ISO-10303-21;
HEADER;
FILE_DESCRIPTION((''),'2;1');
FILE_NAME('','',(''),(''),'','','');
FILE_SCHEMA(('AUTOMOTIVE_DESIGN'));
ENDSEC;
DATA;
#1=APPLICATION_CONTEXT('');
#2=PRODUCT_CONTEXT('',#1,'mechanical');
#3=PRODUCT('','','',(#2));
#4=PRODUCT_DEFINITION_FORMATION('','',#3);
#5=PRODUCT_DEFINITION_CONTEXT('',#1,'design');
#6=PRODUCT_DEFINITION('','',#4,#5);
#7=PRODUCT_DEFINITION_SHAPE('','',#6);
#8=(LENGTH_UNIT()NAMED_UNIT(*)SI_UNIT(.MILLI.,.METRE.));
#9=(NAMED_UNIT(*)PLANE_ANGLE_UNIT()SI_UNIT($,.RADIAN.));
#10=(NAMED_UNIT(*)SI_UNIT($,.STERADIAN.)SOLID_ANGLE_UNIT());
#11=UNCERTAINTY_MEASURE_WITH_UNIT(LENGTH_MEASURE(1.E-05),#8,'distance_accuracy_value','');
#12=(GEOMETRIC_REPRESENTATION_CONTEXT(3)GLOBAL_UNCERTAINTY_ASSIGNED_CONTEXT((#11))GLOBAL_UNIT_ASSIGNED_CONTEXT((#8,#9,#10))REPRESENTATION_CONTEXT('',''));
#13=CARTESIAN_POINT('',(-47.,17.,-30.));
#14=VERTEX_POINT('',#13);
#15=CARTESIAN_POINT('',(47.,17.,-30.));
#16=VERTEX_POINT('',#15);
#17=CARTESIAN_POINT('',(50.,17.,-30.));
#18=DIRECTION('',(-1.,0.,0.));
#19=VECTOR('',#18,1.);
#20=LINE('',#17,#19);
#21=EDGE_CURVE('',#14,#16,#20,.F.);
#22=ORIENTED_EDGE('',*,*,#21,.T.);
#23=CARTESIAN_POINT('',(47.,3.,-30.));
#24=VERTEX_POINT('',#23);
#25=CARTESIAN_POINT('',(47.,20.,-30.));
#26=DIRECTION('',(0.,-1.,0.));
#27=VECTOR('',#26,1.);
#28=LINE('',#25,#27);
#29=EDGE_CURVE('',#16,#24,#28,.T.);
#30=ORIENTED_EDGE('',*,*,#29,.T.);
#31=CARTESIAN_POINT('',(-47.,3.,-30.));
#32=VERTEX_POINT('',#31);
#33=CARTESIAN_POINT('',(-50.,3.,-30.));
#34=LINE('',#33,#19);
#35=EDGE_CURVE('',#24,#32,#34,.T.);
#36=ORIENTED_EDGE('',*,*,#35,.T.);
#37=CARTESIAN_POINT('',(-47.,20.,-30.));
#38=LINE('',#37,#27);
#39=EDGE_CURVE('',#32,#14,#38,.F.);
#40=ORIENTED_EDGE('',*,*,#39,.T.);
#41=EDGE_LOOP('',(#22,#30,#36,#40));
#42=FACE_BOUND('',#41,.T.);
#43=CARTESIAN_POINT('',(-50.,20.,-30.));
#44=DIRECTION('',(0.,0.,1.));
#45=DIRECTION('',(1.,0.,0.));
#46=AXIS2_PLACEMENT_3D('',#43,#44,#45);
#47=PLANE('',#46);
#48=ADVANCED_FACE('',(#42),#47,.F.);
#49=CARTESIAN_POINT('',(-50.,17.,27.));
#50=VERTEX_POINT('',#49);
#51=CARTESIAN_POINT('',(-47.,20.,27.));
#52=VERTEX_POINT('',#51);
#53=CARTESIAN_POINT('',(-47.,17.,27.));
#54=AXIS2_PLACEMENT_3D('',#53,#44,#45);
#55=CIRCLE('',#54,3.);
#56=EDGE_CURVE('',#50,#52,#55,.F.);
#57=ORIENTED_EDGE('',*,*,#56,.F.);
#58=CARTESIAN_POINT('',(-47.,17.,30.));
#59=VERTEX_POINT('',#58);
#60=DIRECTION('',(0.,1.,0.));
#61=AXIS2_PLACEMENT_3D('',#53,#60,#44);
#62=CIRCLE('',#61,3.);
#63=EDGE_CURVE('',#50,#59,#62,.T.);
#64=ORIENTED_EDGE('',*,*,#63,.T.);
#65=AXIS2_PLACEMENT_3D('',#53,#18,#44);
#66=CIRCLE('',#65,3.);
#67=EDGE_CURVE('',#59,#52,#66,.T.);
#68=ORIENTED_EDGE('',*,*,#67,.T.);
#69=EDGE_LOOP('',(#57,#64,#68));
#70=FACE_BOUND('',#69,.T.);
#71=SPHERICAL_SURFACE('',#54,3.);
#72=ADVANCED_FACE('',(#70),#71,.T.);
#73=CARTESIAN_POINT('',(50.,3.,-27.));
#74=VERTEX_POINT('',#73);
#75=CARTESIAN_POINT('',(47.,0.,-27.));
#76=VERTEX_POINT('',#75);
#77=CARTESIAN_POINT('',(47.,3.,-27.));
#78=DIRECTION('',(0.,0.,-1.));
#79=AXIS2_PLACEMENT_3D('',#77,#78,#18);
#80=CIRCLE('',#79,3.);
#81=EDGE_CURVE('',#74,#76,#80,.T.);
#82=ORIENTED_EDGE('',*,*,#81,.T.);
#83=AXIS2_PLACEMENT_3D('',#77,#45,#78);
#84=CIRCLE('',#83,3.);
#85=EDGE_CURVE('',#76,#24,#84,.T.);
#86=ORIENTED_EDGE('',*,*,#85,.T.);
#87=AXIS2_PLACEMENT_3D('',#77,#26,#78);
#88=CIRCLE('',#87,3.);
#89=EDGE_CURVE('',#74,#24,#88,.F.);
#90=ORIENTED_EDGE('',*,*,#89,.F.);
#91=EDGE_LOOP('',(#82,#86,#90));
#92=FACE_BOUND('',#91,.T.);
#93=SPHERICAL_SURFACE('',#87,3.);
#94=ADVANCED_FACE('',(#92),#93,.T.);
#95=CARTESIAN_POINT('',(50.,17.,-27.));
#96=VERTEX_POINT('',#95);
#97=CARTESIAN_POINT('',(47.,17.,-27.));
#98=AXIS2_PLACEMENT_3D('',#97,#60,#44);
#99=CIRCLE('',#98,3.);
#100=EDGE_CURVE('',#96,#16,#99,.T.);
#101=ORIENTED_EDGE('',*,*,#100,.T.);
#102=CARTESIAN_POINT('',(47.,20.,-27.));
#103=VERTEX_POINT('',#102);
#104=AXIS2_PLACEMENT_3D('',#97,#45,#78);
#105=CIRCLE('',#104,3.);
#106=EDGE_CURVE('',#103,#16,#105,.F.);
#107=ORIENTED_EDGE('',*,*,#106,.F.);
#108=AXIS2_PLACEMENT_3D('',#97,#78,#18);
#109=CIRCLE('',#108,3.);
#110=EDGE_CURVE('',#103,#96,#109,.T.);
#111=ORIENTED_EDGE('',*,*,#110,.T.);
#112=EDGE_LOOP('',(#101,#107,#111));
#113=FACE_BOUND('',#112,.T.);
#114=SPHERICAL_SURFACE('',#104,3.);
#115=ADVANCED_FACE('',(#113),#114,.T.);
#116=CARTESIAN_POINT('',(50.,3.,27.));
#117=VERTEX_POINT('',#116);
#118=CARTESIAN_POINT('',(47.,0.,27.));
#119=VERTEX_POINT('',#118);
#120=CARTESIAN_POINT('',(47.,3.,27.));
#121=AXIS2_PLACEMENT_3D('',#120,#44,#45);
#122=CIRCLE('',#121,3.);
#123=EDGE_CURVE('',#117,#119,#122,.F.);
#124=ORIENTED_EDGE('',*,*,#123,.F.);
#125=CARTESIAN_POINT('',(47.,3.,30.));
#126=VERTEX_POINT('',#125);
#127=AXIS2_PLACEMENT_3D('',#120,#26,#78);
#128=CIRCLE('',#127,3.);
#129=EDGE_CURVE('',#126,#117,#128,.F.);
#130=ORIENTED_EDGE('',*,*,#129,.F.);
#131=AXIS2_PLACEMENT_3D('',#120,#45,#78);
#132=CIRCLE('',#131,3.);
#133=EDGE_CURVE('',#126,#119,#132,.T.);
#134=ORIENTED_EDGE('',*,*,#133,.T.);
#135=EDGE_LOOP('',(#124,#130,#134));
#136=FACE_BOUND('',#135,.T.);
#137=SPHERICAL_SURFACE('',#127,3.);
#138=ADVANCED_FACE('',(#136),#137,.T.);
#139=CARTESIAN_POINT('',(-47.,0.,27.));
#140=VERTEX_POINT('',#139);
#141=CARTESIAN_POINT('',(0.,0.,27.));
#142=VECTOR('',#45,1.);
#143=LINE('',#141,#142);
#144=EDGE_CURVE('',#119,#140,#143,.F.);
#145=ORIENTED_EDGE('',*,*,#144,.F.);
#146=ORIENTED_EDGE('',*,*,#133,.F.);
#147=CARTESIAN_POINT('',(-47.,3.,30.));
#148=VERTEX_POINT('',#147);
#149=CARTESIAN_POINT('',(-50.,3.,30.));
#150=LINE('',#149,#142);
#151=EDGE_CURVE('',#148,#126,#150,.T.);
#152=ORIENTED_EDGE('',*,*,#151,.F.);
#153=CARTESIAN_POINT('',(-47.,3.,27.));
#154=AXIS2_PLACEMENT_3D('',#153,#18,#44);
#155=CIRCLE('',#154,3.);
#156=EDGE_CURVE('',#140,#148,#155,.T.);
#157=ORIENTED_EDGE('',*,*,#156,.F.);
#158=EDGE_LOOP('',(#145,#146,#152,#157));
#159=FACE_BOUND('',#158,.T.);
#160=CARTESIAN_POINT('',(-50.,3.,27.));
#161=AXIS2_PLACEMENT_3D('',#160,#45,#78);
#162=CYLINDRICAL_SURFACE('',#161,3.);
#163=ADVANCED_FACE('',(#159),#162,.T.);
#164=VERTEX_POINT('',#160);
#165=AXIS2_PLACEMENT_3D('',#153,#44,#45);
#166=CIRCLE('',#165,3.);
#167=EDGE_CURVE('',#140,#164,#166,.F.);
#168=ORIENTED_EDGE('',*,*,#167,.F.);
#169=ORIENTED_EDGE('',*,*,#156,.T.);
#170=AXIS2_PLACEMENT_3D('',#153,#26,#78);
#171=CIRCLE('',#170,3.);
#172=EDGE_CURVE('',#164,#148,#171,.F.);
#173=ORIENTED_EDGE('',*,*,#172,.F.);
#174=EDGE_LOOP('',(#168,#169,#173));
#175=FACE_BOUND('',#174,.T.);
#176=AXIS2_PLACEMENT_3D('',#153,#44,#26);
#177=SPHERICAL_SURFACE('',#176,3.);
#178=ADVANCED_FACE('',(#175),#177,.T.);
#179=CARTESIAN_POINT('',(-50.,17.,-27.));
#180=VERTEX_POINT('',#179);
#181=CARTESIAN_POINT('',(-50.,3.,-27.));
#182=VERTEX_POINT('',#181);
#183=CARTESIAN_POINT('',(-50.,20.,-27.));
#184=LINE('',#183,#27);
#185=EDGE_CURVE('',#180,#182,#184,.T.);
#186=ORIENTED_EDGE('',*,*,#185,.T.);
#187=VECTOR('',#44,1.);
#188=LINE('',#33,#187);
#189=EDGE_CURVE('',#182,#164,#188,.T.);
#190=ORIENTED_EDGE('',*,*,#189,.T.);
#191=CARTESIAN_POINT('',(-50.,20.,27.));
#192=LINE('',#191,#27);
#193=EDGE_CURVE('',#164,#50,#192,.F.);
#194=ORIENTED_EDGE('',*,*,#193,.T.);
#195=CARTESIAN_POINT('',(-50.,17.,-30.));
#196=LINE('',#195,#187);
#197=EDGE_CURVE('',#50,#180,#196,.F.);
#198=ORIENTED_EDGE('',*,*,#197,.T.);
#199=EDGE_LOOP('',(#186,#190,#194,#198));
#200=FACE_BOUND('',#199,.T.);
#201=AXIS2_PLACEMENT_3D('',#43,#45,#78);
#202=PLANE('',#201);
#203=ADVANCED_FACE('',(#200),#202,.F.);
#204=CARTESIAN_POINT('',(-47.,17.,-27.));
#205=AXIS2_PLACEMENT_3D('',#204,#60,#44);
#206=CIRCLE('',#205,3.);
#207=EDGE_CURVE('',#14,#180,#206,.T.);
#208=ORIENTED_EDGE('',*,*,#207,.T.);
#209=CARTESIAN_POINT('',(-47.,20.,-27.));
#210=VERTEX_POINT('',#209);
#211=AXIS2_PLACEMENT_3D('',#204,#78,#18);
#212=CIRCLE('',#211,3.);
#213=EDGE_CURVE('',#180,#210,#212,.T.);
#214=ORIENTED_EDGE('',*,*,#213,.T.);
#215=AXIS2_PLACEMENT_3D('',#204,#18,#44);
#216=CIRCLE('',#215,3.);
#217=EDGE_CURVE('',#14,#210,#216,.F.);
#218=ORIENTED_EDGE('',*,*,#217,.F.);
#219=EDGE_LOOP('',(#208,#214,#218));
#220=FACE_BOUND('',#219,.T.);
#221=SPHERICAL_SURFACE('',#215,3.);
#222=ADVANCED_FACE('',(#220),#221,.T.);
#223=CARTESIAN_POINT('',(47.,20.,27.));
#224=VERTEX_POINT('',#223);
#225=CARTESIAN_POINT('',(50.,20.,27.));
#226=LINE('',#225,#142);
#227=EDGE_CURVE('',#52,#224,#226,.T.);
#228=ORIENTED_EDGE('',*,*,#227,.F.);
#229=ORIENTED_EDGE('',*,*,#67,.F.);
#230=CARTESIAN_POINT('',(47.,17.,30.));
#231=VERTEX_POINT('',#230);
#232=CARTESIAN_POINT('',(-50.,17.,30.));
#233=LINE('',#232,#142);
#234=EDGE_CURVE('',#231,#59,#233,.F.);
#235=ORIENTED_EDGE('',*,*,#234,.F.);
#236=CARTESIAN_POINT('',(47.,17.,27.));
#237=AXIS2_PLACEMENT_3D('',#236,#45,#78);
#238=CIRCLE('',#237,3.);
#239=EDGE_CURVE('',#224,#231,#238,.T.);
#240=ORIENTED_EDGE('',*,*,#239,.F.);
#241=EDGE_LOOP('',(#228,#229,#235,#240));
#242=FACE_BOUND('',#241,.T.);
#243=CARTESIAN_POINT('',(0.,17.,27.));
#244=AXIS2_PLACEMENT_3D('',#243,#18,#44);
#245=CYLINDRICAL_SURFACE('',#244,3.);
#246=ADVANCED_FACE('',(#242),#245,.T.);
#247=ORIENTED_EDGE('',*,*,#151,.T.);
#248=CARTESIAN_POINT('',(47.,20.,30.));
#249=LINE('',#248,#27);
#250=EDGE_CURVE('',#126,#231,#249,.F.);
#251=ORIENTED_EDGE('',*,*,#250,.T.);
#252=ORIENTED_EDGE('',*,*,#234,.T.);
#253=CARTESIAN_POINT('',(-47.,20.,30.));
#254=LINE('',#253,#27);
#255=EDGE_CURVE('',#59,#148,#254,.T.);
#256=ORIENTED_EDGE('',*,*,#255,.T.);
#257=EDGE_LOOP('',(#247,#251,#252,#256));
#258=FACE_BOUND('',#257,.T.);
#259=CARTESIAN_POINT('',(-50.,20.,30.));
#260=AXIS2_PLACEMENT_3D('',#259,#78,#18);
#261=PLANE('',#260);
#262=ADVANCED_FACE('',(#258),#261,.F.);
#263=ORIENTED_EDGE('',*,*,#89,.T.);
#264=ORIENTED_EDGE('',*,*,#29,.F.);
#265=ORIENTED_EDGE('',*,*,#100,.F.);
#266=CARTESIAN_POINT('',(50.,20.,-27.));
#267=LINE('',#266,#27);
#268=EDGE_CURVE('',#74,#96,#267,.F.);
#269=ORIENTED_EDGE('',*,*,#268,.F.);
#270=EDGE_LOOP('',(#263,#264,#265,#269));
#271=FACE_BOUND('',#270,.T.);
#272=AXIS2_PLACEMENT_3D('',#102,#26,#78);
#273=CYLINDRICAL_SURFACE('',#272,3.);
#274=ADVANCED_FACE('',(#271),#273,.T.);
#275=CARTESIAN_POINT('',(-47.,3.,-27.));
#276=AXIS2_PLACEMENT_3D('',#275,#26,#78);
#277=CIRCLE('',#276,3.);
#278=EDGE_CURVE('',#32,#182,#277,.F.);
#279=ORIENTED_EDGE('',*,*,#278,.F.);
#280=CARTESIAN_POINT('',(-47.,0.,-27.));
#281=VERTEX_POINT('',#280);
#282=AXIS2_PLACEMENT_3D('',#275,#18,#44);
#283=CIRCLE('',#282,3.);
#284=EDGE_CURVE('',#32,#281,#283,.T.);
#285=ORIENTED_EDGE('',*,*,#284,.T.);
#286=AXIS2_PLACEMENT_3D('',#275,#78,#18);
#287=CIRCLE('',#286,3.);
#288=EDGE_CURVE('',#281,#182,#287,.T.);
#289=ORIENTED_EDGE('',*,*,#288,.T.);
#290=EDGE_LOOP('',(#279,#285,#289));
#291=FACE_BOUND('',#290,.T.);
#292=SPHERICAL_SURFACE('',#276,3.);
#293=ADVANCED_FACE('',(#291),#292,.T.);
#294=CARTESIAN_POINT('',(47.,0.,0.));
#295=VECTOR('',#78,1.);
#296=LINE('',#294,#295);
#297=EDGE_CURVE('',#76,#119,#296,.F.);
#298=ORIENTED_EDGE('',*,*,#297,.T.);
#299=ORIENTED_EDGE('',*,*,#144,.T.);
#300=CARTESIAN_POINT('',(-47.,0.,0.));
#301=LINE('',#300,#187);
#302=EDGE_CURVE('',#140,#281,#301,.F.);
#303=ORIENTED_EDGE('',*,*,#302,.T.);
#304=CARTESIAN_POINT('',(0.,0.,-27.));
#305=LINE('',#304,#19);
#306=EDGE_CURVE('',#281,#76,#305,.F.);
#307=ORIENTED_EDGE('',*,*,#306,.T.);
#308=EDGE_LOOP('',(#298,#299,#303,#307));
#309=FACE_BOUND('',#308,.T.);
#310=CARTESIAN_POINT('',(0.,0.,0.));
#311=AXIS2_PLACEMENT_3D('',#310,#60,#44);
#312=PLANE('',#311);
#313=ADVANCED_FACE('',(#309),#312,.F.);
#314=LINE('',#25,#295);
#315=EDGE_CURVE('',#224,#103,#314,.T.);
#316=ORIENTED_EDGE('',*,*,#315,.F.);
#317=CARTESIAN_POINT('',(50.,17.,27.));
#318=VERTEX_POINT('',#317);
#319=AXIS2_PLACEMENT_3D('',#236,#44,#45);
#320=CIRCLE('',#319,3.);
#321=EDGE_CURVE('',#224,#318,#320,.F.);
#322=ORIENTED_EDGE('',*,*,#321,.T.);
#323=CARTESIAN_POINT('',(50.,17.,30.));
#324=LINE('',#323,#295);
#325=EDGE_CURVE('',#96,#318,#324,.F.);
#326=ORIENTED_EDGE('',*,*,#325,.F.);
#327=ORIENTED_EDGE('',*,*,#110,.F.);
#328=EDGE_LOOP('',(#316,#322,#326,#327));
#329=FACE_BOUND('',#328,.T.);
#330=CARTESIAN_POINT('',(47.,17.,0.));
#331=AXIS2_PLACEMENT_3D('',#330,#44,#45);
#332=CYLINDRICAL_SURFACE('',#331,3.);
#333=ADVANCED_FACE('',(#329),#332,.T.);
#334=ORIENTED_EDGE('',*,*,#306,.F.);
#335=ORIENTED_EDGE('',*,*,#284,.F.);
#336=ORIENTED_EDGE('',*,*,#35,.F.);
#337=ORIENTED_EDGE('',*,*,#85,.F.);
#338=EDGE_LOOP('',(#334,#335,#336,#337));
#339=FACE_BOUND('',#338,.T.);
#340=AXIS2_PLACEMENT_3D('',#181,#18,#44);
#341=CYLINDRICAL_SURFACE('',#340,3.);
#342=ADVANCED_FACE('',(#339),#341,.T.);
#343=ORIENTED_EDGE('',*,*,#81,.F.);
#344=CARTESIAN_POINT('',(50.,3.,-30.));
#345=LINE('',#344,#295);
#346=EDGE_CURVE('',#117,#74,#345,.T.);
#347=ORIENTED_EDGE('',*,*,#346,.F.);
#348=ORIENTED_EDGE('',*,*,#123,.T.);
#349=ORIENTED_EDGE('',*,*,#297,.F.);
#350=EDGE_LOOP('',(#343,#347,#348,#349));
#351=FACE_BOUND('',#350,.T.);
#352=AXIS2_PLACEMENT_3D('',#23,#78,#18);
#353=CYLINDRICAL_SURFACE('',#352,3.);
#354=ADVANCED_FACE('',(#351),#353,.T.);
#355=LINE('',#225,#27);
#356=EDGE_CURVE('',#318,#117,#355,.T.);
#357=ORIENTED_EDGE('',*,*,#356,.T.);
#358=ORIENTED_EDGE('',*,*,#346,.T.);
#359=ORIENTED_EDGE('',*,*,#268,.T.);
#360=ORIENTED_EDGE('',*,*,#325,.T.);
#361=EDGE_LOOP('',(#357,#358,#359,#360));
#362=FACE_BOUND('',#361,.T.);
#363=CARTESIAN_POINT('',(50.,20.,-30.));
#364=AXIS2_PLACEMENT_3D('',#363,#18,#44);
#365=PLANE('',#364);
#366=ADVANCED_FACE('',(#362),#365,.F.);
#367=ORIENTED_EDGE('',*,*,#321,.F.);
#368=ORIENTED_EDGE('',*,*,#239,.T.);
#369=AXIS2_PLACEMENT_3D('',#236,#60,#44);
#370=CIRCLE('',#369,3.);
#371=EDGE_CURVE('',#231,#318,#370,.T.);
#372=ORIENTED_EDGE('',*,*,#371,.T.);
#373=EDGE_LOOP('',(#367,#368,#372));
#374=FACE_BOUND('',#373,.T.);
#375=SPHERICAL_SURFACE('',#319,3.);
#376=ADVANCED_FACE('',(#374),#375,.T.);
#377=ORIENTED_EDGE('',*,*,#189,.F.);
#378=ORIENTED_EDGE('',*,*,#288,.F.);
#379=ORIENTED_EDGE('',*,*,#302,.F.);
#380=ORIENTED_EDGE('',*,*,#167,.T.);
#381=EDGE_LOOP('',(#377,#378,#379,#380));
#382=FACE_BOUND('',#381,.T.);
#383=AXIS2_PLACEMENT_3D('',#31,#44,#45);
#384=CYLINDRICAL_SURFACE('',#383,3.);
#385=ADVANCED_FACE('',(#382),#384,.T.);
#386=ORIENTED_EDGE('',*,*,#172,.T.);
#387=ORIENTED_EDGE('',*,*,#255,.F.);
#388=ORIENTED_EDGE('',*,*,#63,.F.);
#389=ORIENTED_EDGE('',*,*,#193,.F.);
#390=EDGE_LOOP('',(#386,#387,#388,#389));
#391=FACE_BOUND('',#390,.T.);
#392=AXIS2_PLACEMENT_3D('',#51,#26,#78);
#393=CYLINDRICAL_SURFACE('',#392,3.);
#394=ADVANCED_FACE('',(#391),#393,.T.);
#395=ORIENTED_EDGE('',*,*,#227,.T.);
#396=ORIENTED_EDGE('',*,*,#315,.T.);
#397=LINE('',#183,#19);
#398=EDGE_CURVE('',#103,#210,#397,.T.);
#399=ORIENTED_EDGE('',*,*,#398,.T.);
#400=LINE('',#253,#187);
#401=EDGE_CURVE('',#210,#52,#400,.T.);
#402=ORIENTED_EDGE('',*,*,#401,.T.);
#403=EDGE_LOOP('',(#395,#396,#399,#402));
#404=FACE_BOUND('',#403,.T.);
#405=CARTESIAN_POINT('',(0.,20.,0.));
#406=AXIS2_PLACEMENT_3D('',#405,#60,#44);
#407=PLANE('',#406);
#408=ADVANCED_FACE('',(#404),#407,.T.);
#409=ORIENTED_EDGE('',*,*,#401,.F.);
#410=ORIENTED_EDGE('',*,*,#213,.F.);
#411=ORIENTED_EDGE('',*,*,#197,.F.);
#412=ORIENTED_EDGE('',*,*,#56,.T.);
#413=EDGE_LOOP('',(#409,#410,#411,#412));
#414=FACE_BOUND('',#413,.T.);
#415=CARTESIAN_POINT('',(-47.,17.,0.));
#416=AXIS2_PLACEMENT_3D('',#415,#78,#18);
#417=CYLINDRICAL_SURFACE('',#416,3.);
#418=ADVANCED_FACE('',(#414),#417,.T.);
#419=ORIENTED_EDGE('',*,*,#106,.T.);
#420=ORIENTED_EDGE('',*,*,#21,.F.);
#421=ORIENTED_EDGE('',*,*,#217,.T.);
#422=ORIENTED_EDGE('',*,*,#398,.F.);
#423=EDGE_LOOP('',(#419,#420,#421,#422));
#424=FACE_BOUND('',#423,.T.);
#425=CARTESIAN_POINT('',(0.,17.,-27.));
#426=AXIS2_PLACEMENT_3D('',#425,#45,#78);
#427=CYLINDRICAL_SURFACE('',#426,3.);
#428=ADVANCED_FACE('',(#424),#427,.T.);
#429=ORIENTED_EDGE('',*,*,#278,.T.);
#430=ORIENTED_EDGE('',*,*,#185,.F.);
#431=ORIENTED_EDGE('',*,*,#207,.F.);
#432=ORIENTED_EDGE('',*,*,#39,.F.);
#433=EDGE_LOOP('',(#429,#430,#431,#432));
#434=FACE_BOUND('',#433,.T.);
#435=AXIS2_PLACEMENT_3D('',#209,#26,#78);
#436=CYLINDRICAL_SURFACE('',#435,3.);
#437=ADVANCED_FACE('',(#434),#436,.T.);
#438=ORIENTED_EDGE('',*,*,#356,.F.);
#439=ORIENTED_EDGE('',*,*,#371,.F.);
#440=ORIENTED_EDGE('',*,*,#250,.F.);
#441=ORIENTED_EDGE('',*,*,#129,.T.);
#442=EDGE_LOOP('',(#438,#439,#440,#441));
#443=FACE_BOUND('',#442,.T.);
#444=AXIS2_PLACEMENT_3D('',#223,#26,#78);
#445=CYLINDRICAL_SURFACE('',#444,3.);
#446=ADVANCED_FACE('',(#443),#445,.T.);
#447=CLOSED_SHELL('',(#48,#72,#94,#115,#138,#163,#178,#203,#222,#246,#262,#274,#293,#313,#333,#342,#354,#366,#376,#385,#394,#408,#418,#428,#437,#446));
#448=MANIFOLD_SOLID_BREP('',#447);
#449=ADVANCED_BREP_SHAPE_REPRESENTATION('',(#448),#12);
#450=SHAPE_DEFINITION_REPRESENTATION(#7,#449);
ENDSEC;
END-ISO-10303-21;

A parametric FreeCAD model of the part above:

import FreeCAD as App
import Part
import Sketcher

V = App.Vector

doc = App.newDocument("Part")
body = doc.addObject("PartDesign::Body", "Body")

sketch1 = body.newObject("Sketcher::SketchObject", "Sketch")
sketch1.AttachmentSupport = (doc.getObject("XZ_Plane"), [""])
sketch1.MapMode = "FlatFace"
sketch1.addGeometry(Part.LineSegment(V(-50, -30, 0), V(-50, 30, 0)), False)
sketch1.addGeometry(Part.LineSegment(V(-50, 30, 0), V(50, 30, 0)), False)
sketch1.addGeometry(Part.LineSegment(V(50, 30, 0), V(50, -30, 0)), False)
sketch1.addGeometry(Part.LineSegment(V(50, -30, 0), V(-50, -30, 0)), False)
sketch1.addConstraint(Sketcher.Constraint("Coincident", 0, 2, 1, 1))
sketch1.addConstraint(Sketcher.Constraint("Coincident", 1, 2, 2, 1))
sketch1.addConstraint(Sketcher.Constraint("Coincident", 2, 2, 3, 1))
sketch1.addConstraint(Sketcher.Constraint("Coincident", 3, 2, 0, 1))
sketch1.addConstraint(Sketcher.Constraint("Vertical", 0))
sketch1.addConstraint(Sketcher.Constraint("Horizontal", 1))
sketch1.addConstraint(Sketcher.Constraint("Vertical", 2))
sketch1.addConstraint(Sketcher.Constraint("Horizontal", 3))
sketch1.addConstraint(Sketcher.Constraint("Symmetric", 0, 2, 2, 2, -1, 1))
sketch1.addConstraint(Sketcher.Constraint("DistanceX", 1, 1, 1, 2, 100.0))
sketch1.addConstraint(Sketcher.Constraint("DistanceY", 0, 1, 0, 2, 60.0))
pad1 = body.newObject("PartDesign::Pad", "Pad")
pad1.Profile = sketch1
pad1.Length = 20
pad1.Reversed = True
doc.recompute()

fillet = body.newObject("PartDesign::Fillet", "Fillet")
fillet.Base = (pad1, ["Edge1"])
fillet.UseAllEdges = True
fillet.Radius = 3

doc.recompute()
